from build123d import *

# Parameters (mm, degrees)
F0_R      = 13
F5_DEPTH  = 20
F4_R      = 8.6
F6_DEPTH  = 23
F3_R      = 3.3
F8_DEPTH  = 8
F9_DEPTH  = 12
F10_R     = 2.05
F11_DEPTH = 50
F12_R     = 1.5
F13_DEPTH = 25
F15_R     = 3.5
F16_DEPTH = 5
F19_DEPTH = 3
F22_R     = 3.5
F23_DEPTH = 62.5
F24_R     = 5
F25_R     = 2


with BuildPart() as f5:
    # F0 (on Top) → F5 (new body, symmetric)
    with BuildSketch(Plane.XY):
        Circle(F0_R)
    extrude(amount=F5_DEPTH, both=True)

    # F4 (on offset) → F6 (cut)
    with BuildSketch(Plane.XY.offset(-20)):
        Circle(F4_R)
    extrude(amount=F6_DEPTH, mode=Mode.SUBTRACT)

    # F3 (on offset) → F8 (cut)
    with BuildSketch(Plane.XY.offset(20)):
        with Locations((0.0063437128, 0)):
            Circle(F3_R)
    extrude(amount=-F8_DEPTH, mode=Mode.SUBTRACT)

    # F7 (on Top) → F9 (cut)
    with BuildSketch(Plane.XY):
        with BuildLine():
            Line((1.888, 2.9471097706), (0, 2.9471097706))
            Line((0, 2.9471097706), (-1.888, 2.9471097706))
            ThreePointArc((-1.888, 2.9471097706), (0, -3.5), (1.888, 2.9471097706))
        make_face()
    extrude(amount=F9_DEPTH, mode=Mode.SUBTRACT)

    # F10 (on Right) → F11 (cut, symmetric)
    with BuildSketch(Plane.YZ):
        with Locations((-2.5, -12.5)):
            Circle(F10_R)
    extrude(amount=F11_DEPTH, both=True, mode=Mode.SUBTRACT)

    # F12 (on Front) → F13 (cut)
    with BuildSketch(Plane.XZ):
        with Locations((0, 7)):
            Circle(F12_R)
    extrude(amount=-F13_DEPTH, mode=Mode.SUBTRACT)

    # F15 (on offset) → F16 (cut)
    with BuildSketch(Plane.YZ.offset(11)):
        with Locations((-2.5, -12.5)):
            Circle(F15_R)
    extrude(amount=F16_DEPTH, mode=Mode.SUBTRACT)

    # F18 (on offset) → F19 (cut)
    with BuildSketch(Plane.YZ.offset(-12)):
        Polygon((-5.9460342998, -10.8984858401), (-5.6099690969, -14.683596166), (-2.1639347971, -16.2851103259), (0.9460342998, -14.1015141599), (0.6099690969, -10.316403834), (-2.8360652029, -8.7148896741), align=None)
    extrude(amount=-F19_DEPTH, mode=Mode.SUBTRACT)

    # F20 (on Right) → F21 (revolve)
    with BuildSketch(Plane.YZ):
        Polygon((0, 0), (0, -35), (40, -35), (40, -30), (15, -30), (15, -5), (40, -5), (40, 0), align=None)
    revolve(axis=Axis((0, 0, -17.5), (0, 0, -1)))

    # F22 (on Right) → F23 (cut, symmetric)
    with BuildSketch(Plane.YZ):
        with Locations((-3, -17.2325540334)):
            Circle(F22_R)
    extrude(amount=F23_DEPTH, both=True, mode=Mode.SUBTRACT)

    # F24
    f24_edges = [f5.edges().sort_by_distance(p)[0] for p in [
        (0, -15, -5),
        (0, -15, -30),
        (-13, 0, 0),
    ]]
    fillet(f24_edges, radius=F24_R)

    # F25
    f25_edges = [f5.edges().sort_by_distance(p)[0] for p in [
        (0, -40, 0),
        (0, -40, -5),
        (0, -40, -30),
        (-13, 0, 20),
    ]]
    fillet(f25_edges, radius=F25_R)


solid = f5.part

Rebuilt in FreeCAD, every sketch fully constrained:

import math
import FreeCAD as App
import Part
import Sketcher
from FreeCAD import Vector
Q = App.Units.Quantity


def edges_at(feature, points):
    """Names of the edges that pass closest to the given points."""
    edges = feature.Shape.Edges
    near = lambda p: min(range(len(edges)), key=lambda i: edges[i].distToShape(Part.Vertex(*p))[0])
    return sorted({f"Edge{near(p) + 1}" for p in points})


def add_polygon(sketch, points):
    """Adds a closed chain of lines whose ends are joined by coincident constraints."""
    first, n = sketch.GeometryCount, len(points)
    for a, b in zip(points, points[1:] + points[:1]):
        sketch.addGeometry(Part.LineSegment(App.Vector(*a, 0), App.Vector(*b, 0)), False)
    for i in range(n):
        sketch.addConstraint(Sketcher.Constraint("Coincident", first + i, 2, first + (i + 1) % n, 1))

doc = App.newDocument("Part")
body = doc.addObject("PartDesign::Body", "Body")

# Sketch on XY plane
sketch1 = body.newObject("Sketcher::SketchObject", "Sketch")
sketch1.AttachmentSupport = (doc.getObject("XY_Plane"), [""])
sketch1.MapMode = "FlatFace"
sketch1.addGeometry(Part.Circle(Vector(0, 0, 0), Vector(0, 0, 1), 13), False)
sketch1.addConstraint(Sketcher.Constraint("Coincident", 0, 3, -1, 1))
sketch1.addConstraint(Sketcher.Constraint("Diameter", 0, Q("26 mm")))
pad1 = body.newObject("PartDesign::Pad", "Pad")
pad1.Profile = sketch1
pad1.Length = 40
pad1.Midplane = True

# Sketch on XY plane
sketch2 = body.newObject("Sketcher::SketchObject", "Sketch001")
sketch2.AttachmentSupport = (doc.getObject("XY_Plane"), [""])
sketch2.MapMode = "FlatFace"
sketch2.AttachmentOffset = App.Placement(Vector(0, 0, -20), App.Rotation())
sketch2.addGeometry(Part.Circle(Vector(0, 0, 0), Vector(0, 0, 1), 8.6), False)
sketch2.addConstraint(Sketcher.Constraint("Coincident", 0, 3, -1, 1))
sketch2.addConstraint(Sketcher.Constraint("Diameter", 0, Q("17.2 mm")))
pocket1 = body.newObject("PartDesign::Pocket", "Pocket")
pocket1.Profile = sketch2
pocket1.Length = 23
pocket1.Reversed = True

# Sketch on XY plane
sketch3 = body.newObject("Sketcher::SketchObject", "Sketch002")
sketch3.AttachmentSupport = (doc.getObject("XY_Plane"), [""])
sketch3.MapMode = "FlatFace"
sketch3.AttachmentOffset = App.Placement(Vector(0, 0, 20), App.Rotation())
sketch3.addGeometry(Part.Circle(Vector(0.006344, 0, 0), Vector(0, 0, 1), 3.3), False)
sketch3.addConstraint(Sketcher.Constraint("PointOnObject", 0, 3, -1))
sketch3.addConstraint(Sketcher.Constraint("Diameter", 0, Q("6.6 mm")))
sketch3.addConstraint(Sketcher.Constraint("DistanceX", -1, 1, 0, 3, Q("0.006344 mm")))
pocket2 = body.newObject("PartDesign::Pocket", "Pocket001")
pocket2.Profile = sketch3
pocket2.Length = 8

# Sketch on XY plane
sketch4 = body.newObject("Sketcher::SketchObject", "Sketch003")
sketch4.AttachmentSupport = (doc.getObject("XY_Plane"), [""])
sketch4.MapMode = "FlatFace"
sketch4.addGeometry(Part.LineSegment(Vector(1.888, 2.94711, 0), Vector(-1.888, 2.94711, 0)), False)
sketch4.addGeometry(Part.ArcOfCircle(Part.Circle(Vector(0, 0, 0), Vector(0, 0, 1), 3.5), math.radians(122.644748), math.radians(417.355252)), False)
sketch4.addConstraint(Sketcher.Constraint("Coincident", 0, 1, 1, 2))
sketch4.addConstraint(Sketcher.Constraint("Coincident", 1, 1, 0, 2))
sketch4.addConstraint(Sketcher.Constraint("Horizontal", 0))
sketch4.addConstraint(Sketcher.Constraint("Coincident", 1, 3, -1, 1))
sketch4.addConstraint(Sketcher.Constraint("Radius", 1, Q("3.5 mm")))
sketch4.addConstraint(Sketcher.Constraint("DistanceX", 0, 2, 0, 1, Q("3.776 mm")))
pocket3 = body.newObject("PartDesign::Pocket", "Pocket002")
pocket3.Profile = sketch4
pocket3.Length = 12
pocket3.Reversed = True

# Sketch on YZ plane
sketch5 = body.newObject("Sketcher::SketchObject", "Sketch004")
sketch5.AttachmentSupport = (doc.getObject("YZ_Plane"), [""])
sketch5.MapMode = "FlatFace"
sketch5.addGeometry(Part.Circle(Vector(-2.5, -12.5, 0), Vector(0, 0, 1), 2.05), False)
sketch5.addConstraint(Sketcher.Constraint("Diameter", 0, Q("4.1 mm")))
sketch5.addConstraint(Sketcher.Constraint("DistanceX", 0, 3, -1, 1, Q("2.5 mm")))
sketch5.addConstraint(Sketcher.Constraint("DistanceY", 0, 3, -1, 1, Q("12.5 mm")))
pocket4 = body.newObject("PartDesign::Pocket", "Pocket003")
pocket4.Profile = sketch5
pocket4.Length = 100
pocket4.Midplane = True

# Sketch on XZ plane
sketch6 = body.newObject("Sketcher::SketchObject", "Sketch005")
sketch6.AttachmentSupport = (doc.getObject("XZ_Plane"), [""])
sketch6.MapMode = "FlatFace"
sketch6.addGeometry(Part.Circle(Vector(0, 7, 0), Vector(0, 0, 1), 1.5), False)
sketch6.addConstraint(Sketcher.Constraint("PointOnObject", 0, 3, -2))
sketch6.addConstraint(Sketcher.Constraint("Diameter", 0, Q("3 mm")))
sketch6.addConstraint(Sketcher.Constraint("DistanceY", -1, 1, 0, 3, Q("7 mm")))
pocket5 = body.newObject("PartDesign::Pocket", "Pocket004")
pocket5.Profile = sketch6
pocket5.Length = 25

# Sketch on YZ plane
sketch7 = body.newObject("Sketcher::SketchObject", "Sketch006")
sketch7.AttachmentSupport = (doc.getObject("YZ_Plane"), [""])
sketch7.MapMode = "FlatFace"
sketch7.AttachmentOffset = App.Placement(Vector(0, 0, 11), App.Rotation())
sketch7.addGeometry(Part.Circle(Vector(-2.5, -12.5, 0), Vector(0, 0, 1), 3.5), False)
sketch7.addConstraint(Sketcher.Constraint("Diameter", 0, Q("7 mm")))
sketch7.addConstraint(Sketcher.Constraint("DistanceX", 0, 3, -1, 1, Q("2.5 mm")))
sketch7.addConstraint(Sketcher.Constraint("DistanceY", 0, 3, -1, 1, Q("12.5 mm")))
pocket6 = body.newObject("PartDesign::Pocket", "Pocket005")
pocket6.Profile = sketch7
pocket6.Length = 5
pocket6.Reversed = True

# Sketch on YZ plane
sketch8 = body.newObject("Sketcher::SketchObject", "Sketch007")
sketch8.AttachmentSupport = (doc.getObject("YZ_Plane"), [""])
sketch8.MapMode = "FlatFace"
sketch8.AttachmentOffset = App.Placement(Vector(0, 0, -12), App.Rotation())
add_polygon(sketch8, [(-5.946034, -10.898486), (-5.609969, -14.683596), (-2.163935, -16.28511), (0.946034, -14.101514), (0.609969, -10.316404), (-2.836065, -8.71489)])  # lines 0-5
sketch8.addConstraint(Sketcher.Constraint("Parallel", 0, 3))
sketch8.addConstraint(Sketcher.Constraint("Parallel", 1, 4))
sketch8.addConstraint(Sketcher.Constraint("Parallel", 2, 5))
sketch8.addConstraint(Sketcher.Constraint("Equal", 0, 1))
sketch8.addConstraint(Sketcher.Constraint("Equal", 1, 2))
sketch8.addConstraint(Sketcher.Constraint("Equal", 2, 3))
sketch8.addConstraint(Sketcher.Constraint("Distance", 0, Q("3.8 mm")))
sketch8.addConstraint(Sketcher.Constraint("DistanceX", 4, 2, 2, 2, Q("3.7821 mm")))
sketch8.addConstraint(Sketcher.Constraint("DistanceX", 0, 2, -1, 1, Q("5.609969 mm")))
sketch8.addConstraint(Sketcher.Constraint("DistanceY", 1, 2, -1, 1, Q("16.28511 mm")))
sketch8.addConstraint(Sketcher.Constraint("DistanceX", -1, 1, 3, 2, Q("0.609969 mm")))
sketch8.addConstraint(Sketcher.Constraint("DistanceY", 4, 2, -1, 1, Q("8.71489 mm")))
pocket7 = body.newObject("PartDesign::Pocket", "Pocket006")
pocket7.Profile = sketch8
pocket7.Length = 3

# Sketch on YZ plane
sketch9 = body.newObject("Sketcher::SketchObject", "Sketch008")
sketch9.AttachmentSupport = (doc.getObject("YZ_Plane"), [""])
sketch9.MapMode = "FlatFace"
add_polygon(sketch9, [(0, 0), (0, -35), (40, -35), (40, -30), (15, -30), (15, -5), (40, -5), (40, 0)])  # lines 0-7
sketch9.addConstraint(Sketcher.Constraint("Vertical", 0))
sketch9.addConstraint(Sketcher.Constraint("Horizontal", 1))
sketch9.addConstraint(Sketcher.Constraint("Vertical", 2))
sketch9.addConstraint(Sketcher.Constraint("Horizontal", 3))
sketch9.addConstraint(Sketcher.Constraint("Vertical", 4))
sketch9.addConstraint(Sketcher.Constraint("Horizontal", 5))
sketch9.addConstraint(Sketcher.Constraint("Vertical", 6))
sketch9.addConstraint(Sketcher.Constraint("Horizontal", 7))
sketch9.addConstraint(Sketcher.Constraint("Coincident", 7, 2, -1, 1))
sketch9.addConstraint(Sketcher.Constraint("Vertical", 2, 2, 5, 2))
sketch9.addConstraint(Sketcher.Constraint("Equal", 5, 4))
sketch9.addConstraint(Sketcher.Constraint("Equal", 2, 6))
sketch9.addConstraint(Sketcher.Constraint("DistanceX", 1, 1, 1, 2, Q("40 mm")))
sketch9.addConstraint(Sketcher.Constraint("DistanceX", 3, 2, 3, 1, Q("25 mm")))
sketch9.addConstraint(Sketcher.Constraint("DistanceY", 0, 2, 0, 1, Q("35 mm")))
revolution = body.newObject("PartDesign::Revolution", "Revolution")
revolution.Profile = sketch9
revolution.ReferenceAxis = (sketch9, ["V_Axis"])
revolution.Angle = 360

# Sketch on YZ plane
sketch10 = body.newObject("Sketcher::SketchObject", "Sketch009")
sketch10.AttachmentSupport = (doc.getObject("YZ_Plane"), [""])
sketch10.MapMode = "FlatFace"
sketch10.addGeometry(Part.Circle(Vector(-3, -17.232554, 0), Vector(0, 0, 1), 3.5), False)
sketch10.addConstraint(Sketcher.Constraint("Diameter", 0, Q("7 mm")))
sketch10.addConstraint(Sketcher.Constraint("DistanceX", 0, 3, -1, 1, Q("3 mm")))
sketch10.addConstraint(Sketcher.Constraint("DistanceY", 0, 3, -1, 1, Q("17.232554 mm")))
pocket8 = body.newObject("PartDesign::Pocket", "Pocket007")
pocket8.Profile = sketch10
pocket8.Length = 125
pocket8.Midplane = True
doc.recompute()

fillet = body.newObject("PartDesign::Fillet", "Fillet")
fillet.Base = (pocket8, edges_at(pocket8, [(0, -15, -5), (0, -15, -30), (-13, 0, 0)]))
fillet.Radius = 5
doc.recompute()

fillet2 = body.newObject("PartDesign::Fillet", "Fillet001")
fillet2.Base = (fillet, edges_at(fillet, [
    (0, -40, 0),
    (0, -40, -5),
    (0, -40, -30),
    (-13, 0, 20),
]))
fillet2.Radius = 2

doc.recompute()
